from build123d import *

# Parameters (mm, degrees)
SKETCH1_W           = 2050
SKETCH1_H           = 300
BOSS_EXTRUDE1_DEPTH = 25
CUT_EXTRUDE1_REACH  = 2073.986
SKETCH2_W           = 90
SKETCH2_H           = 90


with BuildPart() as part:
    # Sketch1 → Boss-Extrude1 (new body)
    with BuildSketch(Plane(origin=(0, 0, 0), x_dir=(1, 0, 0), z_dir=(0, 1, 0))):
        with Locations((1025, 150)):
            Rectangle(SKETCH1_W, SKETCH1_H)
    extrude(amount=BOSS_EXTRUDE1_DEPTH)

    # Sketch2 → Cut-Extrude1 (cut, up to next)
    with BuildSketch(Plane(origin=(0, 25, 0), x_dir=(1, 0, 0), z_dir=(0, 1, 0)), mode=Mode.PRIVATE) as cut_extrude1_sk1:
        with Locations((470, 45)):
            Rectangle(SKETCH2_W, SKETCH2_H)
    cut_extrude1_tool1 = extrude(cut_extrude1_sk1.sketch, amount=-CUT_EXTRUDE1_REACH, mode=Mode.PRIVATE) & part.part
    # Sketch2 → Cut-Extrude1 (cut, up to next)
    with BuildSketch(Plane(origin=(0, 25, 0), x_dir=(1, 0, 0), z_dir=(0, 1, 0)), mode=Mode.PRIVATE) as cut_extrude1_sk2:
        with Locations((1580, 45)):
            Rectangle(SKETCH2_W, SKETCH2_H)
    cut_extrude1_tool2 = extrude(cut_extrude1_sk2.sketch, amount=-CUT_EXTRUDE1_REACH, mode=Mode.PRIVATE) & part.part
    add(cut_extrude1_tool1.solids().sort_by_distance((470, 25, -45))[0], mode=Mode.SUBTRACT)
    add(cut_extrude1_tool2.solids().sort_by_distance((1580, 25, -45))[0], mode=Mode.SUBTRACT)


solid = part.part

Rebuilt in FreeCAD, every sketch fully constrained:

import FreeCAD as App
import Part
import Sketcher
from FreeCAD import Vector


def add_polygon(sketch, points):
    """Adds a closed chain of lines whose ends are joined by coincident constraints."""
    first, n = sketch.GeometryCount, len(points)
    for a, b in zip(points, points[1:] + points[:1]):
        sketch.addGeometry(Part.LineSegment(App.Vector(*a, 0), App.Vector(*b, 0)), False)
    for i in range(n):
        sketch.addConstraint(Sketcher.Constraint("Coincident", first + i, 2, first + (i + 1) % n, 1))

doc = App.newDocument("Part")
body = doc.addObject("PartDesign::Body", "Body")

sketch1 = body.newObject("Sketcher::SketchObject", "Sketch")
sketch1.AttachmentSupport = (doc.getObject("XZ_Plane"), [""])
sketch1.MapMode = "FlatFace"
add_polygon(sketch1, [(0, -300), (0, 0), (2050, 0), (2050, -300)])
sketch1.addConstraint([
    Sketcher.Constraint("Vertical", 0),
    Sketcher.Constraint("Horizontal", 1),
    Sketcher.Constraint("Vertical", 2),
    Sketcher.Constraint("Horizontal", 3),
    Sketcher.Constraint("Coincident", 0, 2, -1, 1),
    Sketcher.Constraint("DistanceX", 1, 1, 1, 2, 2050.0),
    Sketcher.Constraint("DistanceY", 0, 1, 0, 2, 300.0),
])
pad1 = body.newObject("PartDesign::Pad", "Pad")
pad1.Profile = sketch1
pad1.Length = 25
pad1.Reversed = True

sketch2 = body.newObject("Sketcher::SketchObject", "Sketch001")
sketch2.AttachmentSupport = (doc.getObject("XZ_Plane"), [""])
sketch2.MapMode = "FlatFace"
sketch2.AttachmentOffset = App.Placement(Vector(0, 0, -25), App.Rotation())
add_polygon(sketch2, [(425, -90), (425, 0), (515, 0), (515, -90)])
sketch2.addConstraint([
    Sketcher.Constraint("Vertical", 0),
    Sketcher.Constraint("Horizontal", 1),
    Sketcher.Constraint("Vertical", 2),
    Sketcher.Constraint("Horizontal", 3),
    Sketcher.Constraint("PointOnObject", 0, 2, -1),
    Sketcher.Constraint("Equal", 3, 0),
    Sketcher.Constraint("DistanceX", 1, 1, 1, 2, 90.0),
    Sketcher.Constraint("DistanceX", -1, 1, 0, 2, 425.0),
])
pocket1 = body.newObject("PartDesign::Pocket", "Pocket")
pocket1.Profile = sketch2
pocket1.Type = "UpToFirst"
pocket1.Reversed = True

sketch3 = body.newObject("Sketcher::SketchObject", "Sketch002")
sketch3.AttachmentSupport = (doc.getObject("XZ_Plane"), [""])
sketch3.MapMode = "FlatFace"
sketch3.AttachmentOffset = App.Placement(Vector(0, 0, -25), App.Rotation())
add_polygon(sketch3, [(1535, -90), (1535, 0), (1625, 0), (1625, -90)])
sketch3.addConstraint([
    Sketcher.Constraint("Vertical", 0),
    Sketcher.Constraint("Horizontal", 1),
    Sketcher.Constraint("Vertical", 2),
    Sketcher.Constraint("Horizontal", 3),
    Sketcher.Constraint("PointOnObject", 0, 2, -1),
    Sketcher.Constraint("Equal", 3, 0),
    Sketcher.Constraint("DistanceX", 1, 1, 1, 2, 90.0),
    Sketcher.Constraint("DistanceX", -1, 1, 0, 2, 1535.0),
])
pocket2 = body.newObject("PartDesign::Pocket", "Pocket001")
pocket2.Profile = sketch3
pocket2.Type = "UpToFirst"
pocket2.Reversed = True

doc.recompute()
